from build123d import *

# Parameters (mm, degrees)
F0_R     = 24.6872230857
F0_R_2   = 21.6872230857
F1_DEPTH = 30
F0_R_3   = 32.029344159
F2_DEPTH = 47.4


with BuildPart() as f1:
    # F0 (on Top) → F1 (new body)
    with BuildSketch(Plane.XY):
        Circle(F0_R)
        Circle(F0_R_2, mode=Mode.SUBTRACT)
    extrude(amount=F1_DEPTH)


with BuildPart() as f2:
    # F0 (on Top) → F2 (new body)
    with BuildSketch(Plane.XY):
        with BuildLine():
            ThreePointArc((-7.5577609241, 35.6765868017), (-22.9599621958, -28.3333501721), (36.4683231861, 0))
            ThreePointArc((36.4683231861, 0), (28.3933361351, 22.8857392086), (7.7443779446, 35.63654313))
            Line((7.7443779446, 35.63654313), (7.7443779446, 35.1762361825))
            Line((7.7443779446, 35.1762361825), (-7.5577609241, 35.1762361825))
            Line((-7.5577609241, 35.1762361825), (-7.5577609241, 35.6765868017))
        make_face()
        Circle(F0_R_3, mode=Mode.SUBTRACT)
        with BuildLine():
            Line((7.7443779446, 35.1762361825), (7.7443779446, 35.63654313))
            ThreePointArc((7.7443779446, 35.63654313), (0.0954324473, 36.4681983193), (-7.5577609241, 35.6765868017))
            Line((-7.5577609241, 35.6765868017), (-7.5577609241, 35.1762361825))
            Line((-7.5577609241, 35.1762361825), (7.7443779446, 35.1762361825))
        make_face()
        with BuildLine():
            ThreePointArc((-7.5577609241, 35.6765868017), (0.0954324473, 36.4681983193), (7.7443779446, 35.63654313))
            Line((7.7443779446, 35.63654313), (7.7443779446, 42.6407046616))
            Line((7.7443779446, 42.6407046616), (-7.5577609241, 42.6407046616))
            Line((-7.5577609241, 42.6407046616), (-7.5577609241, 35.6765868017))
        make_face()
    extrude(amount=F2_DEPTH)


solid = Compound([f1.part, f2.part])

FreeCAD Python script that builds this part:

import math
import FreeCAD as App
import Part
import Sketcher
from FreeCAD import Vector

doc = App.newDocument("Part")
body = doc.addObject("PartDesign::Body", "Body")

# Sketch on XY plane
sketch1 = doc.addObject("Sketcher::SketchObject", "Sketch")
body.addObject(sketch1)
sketch1.AttachmentSupport = (doc.XY_Plane, [""])
sketch1.MapMode = "FlatFace"
sketch1.addGeometry(Part.Circle(Vector(0, 0, 0), Vector(0, 0, 1), 24.687223), False)
sketch1.addGeometry(Part.Circle(Vector(0, 0, 0), Vector(0, 0, 1), 21.687223), False)
sketch1.addConstraint(Sketcher.Constraint("Coincident", 0, 3, -1, 1))
sketch1.addConstraint(Sketcher.Constraint("Coincident", 1, 3, -1, 1))
sketch1.addConstraint(Sketcher.Constraint("Diameter", 0, 49.374446))
sketch1.addConstraint(Sketcher.Constraint("Diameter", 1, 43.374446))
pad1 = doc.addObject("PartDesign::Pad", "Pad")
body.addObject(pad1)
pad1.Profile = sketch1
pad1.Length = 30
body2 = doc.addObject("PartDesign::Body", "Body001")

# Sketch on XY plane
sketch2 = doc.addObject("Sketcher::SketchObject", "Sketch001")
body2.addObject(sketch2)
sketch2.AttachmentSupport = (doc.getObject("XY_Plane001"), [""])
sketch2.MapMode = "FlatFace"
sketch2.addGeometry(Part.ArcOfCircle(Part.Circle(Vector(0, 0, 0), Vector(0, 0, 1), 36.468323), math.radians(101.960763), math.radians(437.739366)), False)
sketch2.addGeometry(Part.LineSegment(Vector(7.744378, 35.636543, 0), Vector(7.744378, 42.640705, 0)), False)
sketch2.addGeometry(Part.LineSegment(Vector(7.744378, 42.640705, 0), Vector(-7.557761, 42.640705, 0)), False)
sketch2.addGeometry(Part.LineSegment(Vector(-7.557761, 42.640705, 0), Vector(-7.557761, 35.676587, 0)), False)
sketch2.addGeometry(Part.Circle(Vector(0, 0, 0), Vector(0, 0, 1), 32.029344), False)
sketch2.addConstraint(Sketcher.Constraint("Coincident", 0, 2, 1, 1))
sketch2.addConstraint(Sketcher.Constraint("Coincident", 1, 2, 2, 1))
sketch2.addConstraint(Sketcher.Constraint("Coincident", 2, 2, 3, 1))
sketch2.addConstraint(Sketcher.Constraint("Coincident", 3, 2, 0, 1))
sketch2.addConstraint(Sketcher.Constraint("Vertical", 1))
sketch2.addConstraint(Sketcher.Constraint("Horizontal", 2))
sketch2.addConstraint(Sketcher.Constraint("Vertical", 3))
sketch2.addConstraint(Sketcher.Constraint("Coincident", 0, 3, -1, 1))
sketch2.addConstraint(Sketcher.Constraint("Coincident", 4, 3, -1, 1))
sketch2.addConstraint(Sketcher.Constraint("Diameter", 4, 64.058688))
sketch2.addConstraint(Sketcher.Constraint("Radius", 0, 36.468323))
sketch2.addConstraint(Sketcher.Constraint("DistanceX", 2, 2, 2, 1, 15.302139))
sketch2.addConstraint(Sketcher.Constraint("DistanceY", 1, 1, 1, 2, 7.004162))
sketch2.addConstraint(Sketcher.Constraint("DistanceY", 3, 2, 3, 1, 6.964118))
pad2 = doc.addObject("PartDesign::Pad", "Pad001")
body2.addObject(pad2)
pad2.Profile = sketch2
pad2.Length = 47.4

doc.recompute()
